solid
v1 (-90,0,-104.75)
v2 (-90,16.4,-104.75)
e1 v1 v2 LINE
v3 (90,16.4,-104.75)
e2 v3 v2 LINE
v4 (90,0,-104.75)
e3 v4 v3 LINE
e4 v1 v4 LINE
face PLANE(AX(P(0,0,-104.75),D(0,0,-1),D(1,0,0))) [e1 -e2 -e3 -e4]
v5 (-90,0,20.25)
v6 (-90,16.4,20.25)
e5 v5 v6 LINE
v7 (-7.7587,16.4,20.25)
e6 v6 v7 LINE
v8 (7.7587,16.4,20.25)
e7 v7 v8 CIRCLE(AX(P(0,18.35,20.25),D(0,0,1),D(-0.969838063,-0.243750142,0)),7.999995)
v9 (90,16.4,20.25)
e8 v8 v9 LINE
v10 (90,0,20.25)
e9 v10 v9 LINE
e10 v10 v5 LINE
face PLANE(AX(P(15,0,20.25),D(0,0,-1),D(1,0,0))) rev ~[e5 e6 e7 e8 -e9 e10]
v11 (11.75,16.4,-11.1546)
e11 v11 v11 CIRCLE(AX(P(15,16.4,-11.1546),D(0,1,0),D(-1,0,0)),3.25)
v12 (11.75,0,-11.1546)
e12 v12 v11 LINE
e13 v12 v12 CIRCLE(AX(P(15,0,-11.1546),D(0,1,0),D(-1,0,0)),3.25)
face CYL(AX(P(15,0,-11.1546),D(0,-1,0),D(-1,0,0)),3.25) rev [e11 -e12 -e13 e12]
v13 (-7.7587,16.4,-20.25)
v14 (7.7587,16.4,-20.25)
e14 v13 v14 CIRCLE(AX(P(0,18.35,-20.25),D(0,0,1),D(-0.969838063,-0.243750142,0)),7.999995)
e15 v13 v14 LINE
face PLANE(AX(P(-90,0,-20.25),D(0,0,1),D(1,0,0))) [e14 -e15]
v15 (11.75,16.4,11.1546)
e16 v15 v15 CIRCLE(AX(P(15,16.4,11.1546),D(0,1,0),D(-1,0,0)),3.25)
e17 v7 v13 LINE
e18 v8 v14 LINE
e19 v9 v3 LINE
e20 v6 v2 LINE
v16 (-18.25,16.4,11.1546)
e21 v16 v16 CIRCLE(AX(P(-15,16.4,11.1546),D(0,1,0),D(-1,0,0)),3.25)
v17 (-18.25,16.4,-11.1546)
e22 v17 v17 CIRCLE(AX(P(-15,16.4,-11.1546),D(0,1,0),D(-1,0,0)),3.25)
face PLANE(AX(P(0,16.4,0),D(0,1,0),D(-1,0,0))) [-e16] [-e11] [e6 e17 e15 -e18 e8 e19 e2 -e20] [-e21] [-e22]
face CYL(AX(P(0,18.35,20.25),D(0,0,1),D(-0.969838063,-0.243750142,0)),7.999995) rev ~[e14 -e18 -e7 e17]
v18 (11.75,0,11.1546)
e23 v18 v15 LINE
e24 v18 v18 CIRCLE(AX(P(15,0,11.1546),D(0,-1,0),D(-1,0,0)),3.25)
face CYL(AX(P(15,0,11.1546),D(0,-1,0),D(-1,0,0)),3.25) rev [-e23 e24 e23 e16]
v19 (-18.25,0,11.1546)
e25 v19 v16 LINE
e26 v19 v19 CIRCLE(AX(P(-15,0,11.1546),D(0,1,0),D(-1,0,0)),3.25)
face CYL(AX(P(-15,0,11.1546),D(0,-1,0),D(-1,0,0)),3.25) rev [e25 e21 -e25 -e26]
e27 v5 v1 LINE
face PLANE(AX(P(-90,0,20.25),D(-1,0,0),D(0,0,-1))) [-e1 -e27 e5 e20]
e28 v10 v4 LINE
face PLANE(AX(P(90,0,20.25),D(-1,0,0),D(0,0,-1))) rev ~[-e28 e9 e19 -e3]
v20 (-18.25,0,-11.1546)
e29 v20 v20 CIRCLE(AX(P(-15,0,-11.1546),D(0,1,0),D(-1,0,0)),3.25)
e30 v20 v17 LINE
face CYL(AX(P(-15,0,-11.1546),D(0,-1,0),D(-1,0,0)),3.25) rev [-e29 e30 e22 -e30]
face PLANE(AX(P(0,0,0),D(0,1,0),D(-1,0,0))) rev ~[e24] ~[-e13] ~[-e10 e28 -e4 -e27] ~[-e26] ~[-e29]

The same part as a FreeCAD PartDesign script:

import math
import FreeCAD as App
import Part
import Sketcher
from FreeCAD import Vector
Q = App.Units.Quantity

doc = App.newDocument("Part")
params = doc.addObject("Spreadsheet::Sheet", "Params")
for row, (alias, value) in enumerate([
    ("sketch1_height", "125 mm"),
    ("sketch1_diameter", "6.5 mm"),
    ("sketch1_width", "180 mm"),
    ("pad1_length", "16.4 mm"),
    ("sketch2_radius", "8 mm"),
    ("pocket1_length", "40.5 mm"),
], start=1):
    params.set(f"A{row}", alias)
    params.set(f"B{row}", "=" + value)
    params.setAlias(f"B{row}", alias)

body = doc.addObject("PartDesign::Body", "Body")

sketch1 = body.newObject("Sketcher::SketchObject", "Sketch")
sketch1.AttachmentSupport = (doc.getObject("XZ_Plane"), [""])
sketch1.MapMode = "FlatFace"
sketch1.addGeometry([
    Part.LineSegment(Vector(90, 20.25, 0), Vector(90, -104.75, 0)),
    Part.LineSegment(Vector(90, -104.75, 0), Vector(-90, -104.75, 0)),
    Part.LineSegment(Vector(-90, -104.75, 0), Vector(-90, 20.25, 0)),
    Part.LineSegment(Vector(-90, 20.25, 0), Vector(90, 20.25, 0)),
    Part.Circle(Vector(15, 11.1546, 0), Vector(0, 0, 1), 3.25),
    Part.Circle(Vector(15, -11.1546, 0), Vector(0, 0, 1), 3.25),
    Part.Circle(Vector(-15, 11.1546, 0), Vector(0, 0, 1), 3.25),
    Part.Circle(Vector(-15, -11.1546, 0), Vector(0, 0, 1), 3.25),
], False)
sketch1.addConstraint([
    Sketcher.Constraint("Coincident", 0, 2, 1, 1),
    Sketcher.Constraint("Coincident", 1, 2, 2, 1),
    Sketcher.Constraint("Coincident", 2, 2, 3, 1),
    Sketcher.Constraint("Coincident", 3, 2, 0, 1),
    Sketcher.Constraint("Vertical", 0),
    Sketcher.Constraint("Horizontal", 1),
    Sketcher.Constraint("Vertical", 2),
    Sketcher.Constraint("Horizontal", 3),
    Sketcher.Constraint("Equal", 4, 5),
    Sketcher.Constraint("Equal", 5, 6),
    Sketcher.Constraint("Equal", 6, 7),
    Sketcher.Constraint("Symmetric", 5, 3, 6, 3, -1, 1),
    Sketcher.Constraint("Symmetric", 4, 3, 7, 3, -1, 1),
    Sketcher.Constraint("Symmetric", 4, 3, 6, 3, -2),
    Sketcher.Constraint("DistanceY", 0, 2, 0, 1, Q("125 mm")),
    Sketcher.Constraint("DistanceX", -1, 1, 4, 3, Q("15 mm")),
    Sketcher.Constraint("Diameter", 4, Q("6.5 mm")),
    Sketcher.Constraint("DistanceX", 1, 2, 1, 1, Q("180 mm")),
    Sketcher.Constraint("DistanceX", -1, 1, 0, 2, Q("90 mm")),
    Sketcher.Constraint("DistanceY", 6, 3, 2, 2, Q("9.0954 mm")),
    Sketcher.Constraint("DistanceY", 0, 2, -1, 1, Q("104.75 mm")),
])
sketch1.setExpression("Constraints[14]", "Params.sketch1_height")
sketch1.setExpression("Constraints[16]", "Params.sketch1_diameter")
sketch1.setExpression("Constraints[17]", "Params.sketch1_width")
pad1 = body.newObject("PartDesign::Pad", "Pad")
pad1.Profile = sketch1
pad1.setExpression("Length", "Params.pad1_length")
pad1.Reversed = True

sketch2 = body.newObject("Sketcher::SketchObject", "Sketch001")
sketch2.AttachmentSupport = (doc.getObject("XY_Plane"), [""])
sketch2.MapMode = "FlatFace"
sketch2.AttachmentOffset = App.Placement(Vector(0, 0, 20.25), App.Rotation())
sketch2.addGeometry([
    Part.LineSegment(Vector(7.7587, 16.4, 0), Vector(-7.7587, 16.4, 0)),
    Part.ArcOfCircle(Part.Circle(Vector(0, 18.35, 0), Vector(0, 0, 1), 7.999995), math.radians(-165.892017), math.radians(-14.107983)),
], False)
sketch2.addConstraint([
    Sketcher.Constraint("Coincident", 0, 1, 1, 2),
    Sketcher.Constraint("Coincident", 1, 1, 0, 2),
    Sketcher.Constraint("Horizontal", 0),
    Sketcher.Constraint("PointOnObject", 1, 3, -2),
    Sketcher.Constraint("Radius", 1, Q("8 mm")),
    Sketcher.Constraint("DistanceY", -1, 1, 0, 1, Q("16.4 mm")),
    Sketcher.Constraint("DistanceY", -1, 1, 1, 3, Q("18.35 mm")),
])
sketch2.setExpression("Constraints[4]", "Params.sketch2_radius")
pocket1 = body.newObject("PartDesign::Pocket", "Pocket")
pocket1.Profile = sketch2
pocket1.setExpression("Length", "Params.pocket1_length")

doc.recompute()
